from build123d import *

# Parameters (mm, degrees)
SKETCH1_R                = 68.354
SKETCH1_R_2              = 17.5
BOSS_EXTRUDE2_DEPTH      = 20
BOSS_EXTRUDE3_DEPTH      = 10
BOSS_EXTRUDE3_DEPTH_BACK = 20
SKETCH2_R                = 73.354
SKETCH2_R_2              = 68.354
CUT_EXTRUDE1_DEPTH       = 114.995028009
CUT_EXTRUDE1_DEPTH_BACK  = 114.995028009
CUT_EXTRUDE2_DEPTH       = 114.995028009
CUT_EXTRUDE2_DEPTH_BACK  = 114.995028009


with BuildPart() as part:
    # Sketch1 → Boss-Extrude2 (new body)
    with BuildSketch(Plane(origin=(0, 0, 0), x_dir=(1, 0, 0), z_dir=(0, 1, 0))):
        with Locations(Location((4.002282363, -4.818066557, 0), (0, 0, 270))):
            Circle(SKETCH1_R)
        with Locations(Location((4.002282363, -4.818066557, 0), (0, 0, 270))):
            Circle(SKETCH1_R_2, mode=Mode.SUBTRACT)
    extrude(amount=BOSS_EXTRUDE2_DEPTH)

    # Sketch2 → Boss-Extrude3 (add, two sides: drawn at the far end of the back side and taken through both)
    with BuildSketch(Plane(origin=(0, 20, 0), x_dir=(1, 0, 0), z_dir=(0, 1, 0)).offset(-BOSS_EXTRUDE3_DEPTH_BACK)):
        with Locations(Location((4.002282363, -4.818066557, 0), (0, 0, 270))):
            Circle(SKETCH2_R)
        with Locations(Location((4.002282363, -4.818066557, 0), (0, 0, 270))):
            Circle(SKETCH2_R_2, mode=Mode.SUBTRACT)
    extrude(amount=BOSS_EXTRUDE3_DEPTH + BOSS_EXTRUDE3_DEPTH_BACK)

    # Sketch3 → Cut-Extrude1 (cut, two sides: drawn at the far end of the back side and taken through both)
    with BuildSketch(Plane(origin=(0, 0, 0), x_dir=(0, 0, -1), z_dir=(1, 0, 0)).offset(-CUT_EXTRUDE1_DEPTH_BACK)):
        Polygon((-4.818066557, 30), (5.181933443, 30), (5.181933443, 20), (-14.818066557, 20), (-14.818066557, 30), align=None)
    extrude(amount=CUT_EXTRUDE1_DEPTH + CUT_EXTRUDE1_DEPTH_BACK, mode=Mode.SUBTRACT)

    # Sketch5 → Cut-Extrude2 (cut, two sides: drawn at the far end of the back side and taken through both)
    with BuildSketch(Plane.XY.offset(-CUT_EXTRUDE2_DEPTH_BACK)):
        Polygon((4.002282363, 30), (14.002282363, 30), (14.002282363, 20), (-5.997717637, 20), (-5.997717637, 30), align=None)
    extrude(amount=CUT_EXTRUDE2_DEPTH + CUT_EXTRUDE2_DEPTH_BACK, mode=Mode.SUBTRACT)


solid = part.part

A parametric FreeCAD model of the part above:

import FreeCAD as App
import Part
import Sketcher

V = App.Vector


def add_polygon(sketch, points):
    """Adds a closed chain of lines whose ends are joined by coincident constraints."""
    first, n = sketch.GeometryCount, len(points)
    for a, b in zip(points, points[1:] + points[:1]):
        sketch.addGeometry(Part.LineSegment(App.Vector(*a, 0), App.Vector(*b, 0)), False)
    for i in range(n):
        sketch.addConstraint(Sketcher.Constraint("Coincident", first + i, 2, first + (i + 1) % n, 1))

doc = App.newDocument("Part")
body = doc.addObject("PartDesign::Body", "Body")

# Sketch on XZ plane
sketch1 = doc.addObject("Sketcher::SketchObject", "Sketch")
body.addObject(sketch1)
sketch1.AttachmentSupport = (doc.XZ_Plane, [""])
sketch1.MapMode = "FlatFace"
sketch1.addGeometry([
    Part.Circle(V(4.002282, 4.818067, 0), V(0, 0, 1), 68.354),
    Part.Circle(V(4.002282, 4.818067, 0), V(0, 0, 1), 17.5),
], False)
sketch1.addConstraint([
    Sketcher.Constraint("Coincident", 1, 3, 0, 3),
    Sketcher.Constraint("Diameter", 1, 35.0),
    Sketcher.Constraint("Diameter", 0, 136.708),
    Sketcher.Constraint("DistanceX", -1, 1, 0, 3, 4.002282),
    Sketcher.Constraint("DistanceY", -1, 1, 0, 3, 4.818067),
])
pad1 = doc.addObject("PartDesign::Pad", "Pad")
body.addObject(pad1)
pad1.Profile = sketch1
pad1.Length = 20
pad1.Reversed = True

# Sketch on XZ plane
sketch2 = doc.addObject("Sketcher::SketchObject", "Sketch001")
body.addObject(sketch2)
sketch2.AttachmentSupport = (doc.XZ_Plane, [""])
sketch2.MapMode = "FlatFace"
sketch2.AttachmentOffset = App.Placement(V(0, 0, -20), App.Rotation())
sketch2.addGeometry([
    Part.Circle(V(4.002282, 4.818067, 0), V(0, 0, 1), 73.354),
    Part.Circle(V(4.002282, 4.818067, 0), V(0, 0, 1), 68.354),
], False)
sketch2.addConstraint([
    Sketcher.Constraint("Coincident", 1, 3, 0, 3),
    Sketcher.Constraint("Diameter", 0, 146.708),
    Sketcher.Constraint("Diameter", 1, 136.708),
    Sketcher.Constraint("DistanceX", -1, 1, 0, 3, 4.002282),
    Sketcher.Constraint("DistanceY", -1, 1, 0, 3, 4.818067),
])
pad2 = doc.addObject("PartDesign::Pad", "Pad001")
body.addObject(pad2)
pad2.Profile = sketch2
pad2.Type = "TwoLengths"
pad2.Length = 10
pad2.Length2 = 20
pad2.Reversed = True

# Sketch on YZ plane
sketch3 = doc.addObject("Sketcher::SketchObject", "Sketch002")
body.addObject(sketch3)
sketch3.AttachmentSupport = (doc.YZ_Plane, [""])
sketch3.MapMode = "FlatFace"
add_polygon(sketch3, [(30, -5.181933), (30, 14.818067), (20, 14.818067), (20, -5.181933)])  # lines 0-3
sketch3.addConstraint([
    Sketcher.Constraint("Vertical", 0),
    Sketcher.Constraint("Horizontal", 1),
    Sketcher.Constraint("Vertical", 2),
    Sketcher.Constraint("Horizontal", 3),
    Sketcher.Constraint("DistanceX", 1, 2, 1, 1, 10.0),
    Sketcher.Constraint("DistanceY", 0, 1, 0, 2, 20.0),
    Sketcher.Constraint("DistanceX", -1, 1, 0, 2, 30.0),
    Sketcher.Constraint("DistanceY", -1, 1, 0, 2, 14.818067),
])
pocket1 = doc.addObject("PartDesign::Pocket", "Pocket")
body.addObject(pocket1)
pocket1.Profile = sketch3
pocket1.Type = "ThroughAll"
pocket1.Midplane = True

# Sketch on XY plane
sketch4 = doc.addObject("Sketcher::SketchObject", "Sketch003")
body.addObject(sketch4)
sketch4.AttachmentSupport = (doc.XY_Plane, [""])
sketch4.MapMode = "FlatFace"
add_polygon(sketch4, [(14.002282, 30), (-5.997718, 30), (-5.997718, 20), (14.002282, 20)])  # lines 0-3
sketch4.addConstraint([
    Sketcher.Constraint("Horizontal", 0),
    Sketcher.Constraint("Vertical", 1),
    Sketcher.Constraint("Horizontal", 2),
    Sketcher.Constraint("Vertical", 3),
    Sketcher.Constraint("DistanceX", 0, 2, 0, 1, 20.0),
    Sketcher.Constraint("DistanceY", 1, 2, 1, 1, 10.0),
    Sketcher.Constraint("DistanceY", -1, 1, 0, 2, 30.0),
    Sketcher.Constraint("DistanceX", 0, 2, -1, 1, 5.997718),
])
pocket2 = doc.addObject("PartDesign::Pocket", "Pocket001")
body.addObject(pocket2)
pocket2.Profile = sketch4
pocket2.Type = "ThroughAll"
pocket2.Midplane = True

doc.recompute()
